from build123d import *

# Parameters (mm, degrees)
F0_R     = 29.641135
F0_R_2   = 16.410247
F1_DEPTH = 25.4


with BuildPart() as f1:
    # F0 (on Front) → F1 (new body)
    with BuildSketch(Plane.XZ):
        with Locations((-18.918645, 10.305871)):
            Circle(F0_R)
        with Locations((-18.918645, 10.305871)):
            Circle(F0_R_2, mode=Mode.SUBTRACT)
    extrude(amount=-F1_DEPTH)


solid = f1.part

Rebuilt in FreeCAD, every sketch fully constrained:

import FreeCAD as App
import Part
import Sketcher

V = App.Vector
Q = App.Units.Quantity

doc = App.newDocument("Part")
params = doc.addObject("Spreadsheet::Sheet", "Params")
for row, (alias, value) in enumerate([
    ("pad1_length", "1 in"),
], start=1):
    params.set(f"A{row}", alias)
    params.set(f"B{row}", "=" + value)
    params.setAlias(f"B{row}", alias)

body = doc.addObject("PartDesign::Body", "Body")

sketch1 = body.newObject("Sketcher::SketchObject", "Sketch")
sketch1.AttachmentSupport = (doc.getObject("XZ_Plane"), [""])
sketch1.MapMode = "FlatFace"
sketch1.addGeometry([
    Part.Circle(V(-19, 10, 0), V(0, 0, 1), 30),
    Part.Circle(V(-19, 10, 0), V(0, 0, 1), 16),
], False)
sketch1.addConstraint([
    Sketcher.Constraint("Coincident", 1, 3, 0, 3),
    Sketcher.Constraint("Diameter", 0, Q("59.28227 mm")),
    Sketcher.Constraint("Diameter", 1, Q("32.820494 mm")),
    Sketcher.Constraint("DistanceY", -1, 1, 0, 3, Q("10.305871 mm")),
    Sketcher.Constraint("DistanceX", 0, 3, -1, 1, Q("18.918645 mm")),
])
pad1 = body.newObject("PartDesign::Pad", "Pad")
pad1.Profile = sketch1
pad1.setExpression("Length", "Params.pad1_length")
pad1.Reversed = True

doc.recompute()
